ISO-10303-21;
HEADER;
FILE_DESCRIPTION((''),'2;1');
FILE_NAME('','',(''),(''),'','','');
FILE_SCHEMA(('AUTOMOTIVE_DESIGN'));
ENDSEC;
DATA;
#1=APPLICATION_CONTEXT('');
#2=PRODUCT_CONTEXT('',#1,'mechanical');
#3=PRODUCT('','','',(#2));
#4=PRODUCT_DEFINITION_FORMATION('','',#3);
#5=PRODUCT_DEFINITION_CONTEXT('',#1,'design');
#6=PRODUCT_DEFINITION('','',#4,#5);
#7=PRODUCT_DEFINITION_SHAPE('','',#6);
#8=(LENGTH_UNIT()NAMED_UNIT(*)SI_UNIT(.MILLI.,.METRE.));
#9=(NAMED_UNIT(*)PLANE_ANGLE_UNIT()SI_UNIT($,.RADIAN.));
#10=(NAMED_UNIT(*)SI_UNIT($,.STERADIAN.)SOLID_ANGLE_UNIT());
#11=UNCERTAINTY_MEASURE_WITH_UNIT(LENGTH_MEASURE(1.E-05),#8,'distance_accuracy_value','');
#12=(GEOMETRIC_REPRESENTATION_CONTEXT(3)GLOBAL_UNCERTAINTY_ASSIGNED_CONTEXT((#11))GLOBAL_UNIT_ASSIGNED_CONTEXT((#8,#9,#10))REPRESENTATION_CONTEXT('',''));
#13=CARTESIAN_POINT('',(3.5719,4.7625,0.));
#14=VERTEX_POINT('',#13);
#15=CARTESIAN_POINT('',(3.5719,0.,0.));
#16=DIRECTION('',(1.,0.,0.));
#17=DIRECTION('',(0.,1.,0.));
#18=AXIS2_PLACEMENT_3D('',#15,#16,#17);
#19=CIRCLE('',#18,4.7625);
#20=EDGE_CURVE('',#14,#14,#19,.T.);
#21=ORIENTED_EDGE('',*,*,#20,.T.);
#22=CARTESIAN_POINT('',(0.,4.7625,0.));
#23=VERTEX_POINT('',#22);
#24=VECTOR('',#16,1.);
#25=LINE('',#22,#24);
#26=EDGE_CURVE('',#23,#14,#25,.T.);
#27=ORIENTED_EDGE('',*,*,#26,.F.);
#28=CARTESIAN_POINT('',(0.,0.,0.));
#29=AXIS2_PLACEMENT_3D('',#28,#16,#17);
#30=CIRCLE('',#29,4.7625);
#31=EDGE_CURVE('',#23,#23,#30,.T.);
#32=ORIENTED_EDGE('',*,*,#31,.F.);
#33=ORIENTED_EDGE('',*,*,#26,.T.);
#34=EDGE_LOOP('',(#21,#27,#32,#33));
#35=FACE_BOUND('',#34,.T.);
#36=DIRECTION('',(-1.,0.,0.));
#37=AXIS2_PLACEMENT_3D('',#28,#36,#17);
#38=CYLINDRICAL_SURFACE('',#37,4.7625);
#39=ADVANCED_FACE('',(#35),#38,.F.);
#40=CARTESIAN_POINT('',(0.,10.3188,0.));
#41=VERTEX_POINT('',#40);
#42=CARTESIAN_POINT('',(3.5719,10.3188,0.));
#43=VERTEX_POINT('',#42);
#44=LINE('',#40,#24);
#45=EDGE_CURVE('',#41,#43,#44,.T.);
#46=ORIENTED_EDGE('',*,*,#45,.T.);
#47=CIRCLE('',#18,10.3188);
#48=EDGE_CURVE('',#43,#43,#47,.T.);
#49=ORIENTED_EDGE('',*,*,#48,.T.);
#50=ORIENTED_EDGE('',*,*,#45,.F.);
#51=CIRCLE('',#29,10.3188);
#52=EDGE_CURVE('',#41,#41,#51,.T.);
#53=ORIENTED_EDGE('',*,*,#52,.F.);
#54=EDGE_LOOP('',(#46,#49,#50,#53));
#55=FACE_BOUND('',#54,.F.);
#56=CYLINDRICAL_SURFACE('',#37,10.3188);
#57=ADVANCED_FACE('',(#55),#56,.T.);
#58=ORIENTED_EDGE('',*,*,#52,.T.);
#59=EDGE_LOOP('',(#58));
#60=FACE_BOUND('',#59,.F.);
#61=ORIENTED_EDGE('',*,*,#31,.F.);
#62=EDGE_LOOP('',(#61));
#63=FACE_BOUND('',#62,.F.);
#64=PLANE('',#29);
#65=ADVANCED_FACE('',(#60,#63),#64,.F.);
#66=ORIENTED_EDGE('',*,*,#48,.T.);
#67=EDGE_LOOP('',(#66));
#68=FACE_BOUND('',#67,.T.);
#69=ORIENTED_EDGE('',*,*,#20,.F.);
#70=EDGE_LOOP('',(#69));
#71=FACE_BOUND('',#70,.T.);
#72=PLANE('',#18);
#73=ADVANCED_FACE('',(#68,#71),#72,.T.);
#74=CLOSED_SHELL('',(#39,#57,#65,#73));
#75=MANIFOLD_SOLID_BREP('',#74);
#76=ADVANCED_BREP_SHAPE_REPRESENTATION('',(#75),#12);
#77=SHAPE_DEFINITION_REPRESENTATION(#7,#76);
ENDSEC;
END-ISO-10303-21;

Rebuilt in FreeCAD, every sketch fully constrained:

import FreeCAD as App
import Part
import Sketcher
Q = App.Units.Quantity

doc = App.newDocument("Part")
params = doc.addObject("Spreadsheet::Sheet", "Params")
for row, (alias, value) in enumerate([
    ("sketch1_diameter", "0.8125 in"),
    ("sketch1_diameter2", "0.375 in"),
    ("pad1_length", "0.140626 in"),
], start=1):
    params.set(f"A{row}", alias)
    params.set(f"B{row}", "=" + value)
    params.setAlias(f"B{row}", alias)

body = doc.addObject("PartDesign::Body", "Body")

# Sketch on YZ plane
sketch1 = doc.addObject("Sketcher::SketchObject", "Sketch")
body.addObject(sketch1)
sketch1.AttachmentSupport = (doc.YZ_Plane, [""])
sketch1.MapMode = "FlatFace"
sketch1.addGeometry(Part.Circle(App.Vector(0, 0, 0), App.Vector(0, 0, 1), 10.3188), False)
sketch1.addGeometry(Part.Circle(App.Vector(0, 0, 0), App.Vector(0, 0, 1), 4.7625), False)
sketch1.addConstraint(Sketcher.Constraint("Coincident", 0, 3, -1, 1))
sketch1.addConstraint(Sketcher.Constraint("Coincident", 1, 3, -1, 1))
sketch1.addConstraint(Sketcher.Constraint("Diameter", 0, Q("0.8125 in")))
sketch1.addConstraint(Sketcher.Constraint("Diameter", 1, Q("0.375 in")))
sketch1.setExpression("Constraints[2]", "Params.sketch1_diameter")
sketch1.setExpression("Constraints[3]", "Params.sketch1_diameter2")
pad1 = doc.addObject("PartDesign::Pad", "Pad")
body.addObject(pad1)
pad1.Profile = sketch1
pad1.setExpression("Length", "Params.pad1_length")

doc.recompute()
